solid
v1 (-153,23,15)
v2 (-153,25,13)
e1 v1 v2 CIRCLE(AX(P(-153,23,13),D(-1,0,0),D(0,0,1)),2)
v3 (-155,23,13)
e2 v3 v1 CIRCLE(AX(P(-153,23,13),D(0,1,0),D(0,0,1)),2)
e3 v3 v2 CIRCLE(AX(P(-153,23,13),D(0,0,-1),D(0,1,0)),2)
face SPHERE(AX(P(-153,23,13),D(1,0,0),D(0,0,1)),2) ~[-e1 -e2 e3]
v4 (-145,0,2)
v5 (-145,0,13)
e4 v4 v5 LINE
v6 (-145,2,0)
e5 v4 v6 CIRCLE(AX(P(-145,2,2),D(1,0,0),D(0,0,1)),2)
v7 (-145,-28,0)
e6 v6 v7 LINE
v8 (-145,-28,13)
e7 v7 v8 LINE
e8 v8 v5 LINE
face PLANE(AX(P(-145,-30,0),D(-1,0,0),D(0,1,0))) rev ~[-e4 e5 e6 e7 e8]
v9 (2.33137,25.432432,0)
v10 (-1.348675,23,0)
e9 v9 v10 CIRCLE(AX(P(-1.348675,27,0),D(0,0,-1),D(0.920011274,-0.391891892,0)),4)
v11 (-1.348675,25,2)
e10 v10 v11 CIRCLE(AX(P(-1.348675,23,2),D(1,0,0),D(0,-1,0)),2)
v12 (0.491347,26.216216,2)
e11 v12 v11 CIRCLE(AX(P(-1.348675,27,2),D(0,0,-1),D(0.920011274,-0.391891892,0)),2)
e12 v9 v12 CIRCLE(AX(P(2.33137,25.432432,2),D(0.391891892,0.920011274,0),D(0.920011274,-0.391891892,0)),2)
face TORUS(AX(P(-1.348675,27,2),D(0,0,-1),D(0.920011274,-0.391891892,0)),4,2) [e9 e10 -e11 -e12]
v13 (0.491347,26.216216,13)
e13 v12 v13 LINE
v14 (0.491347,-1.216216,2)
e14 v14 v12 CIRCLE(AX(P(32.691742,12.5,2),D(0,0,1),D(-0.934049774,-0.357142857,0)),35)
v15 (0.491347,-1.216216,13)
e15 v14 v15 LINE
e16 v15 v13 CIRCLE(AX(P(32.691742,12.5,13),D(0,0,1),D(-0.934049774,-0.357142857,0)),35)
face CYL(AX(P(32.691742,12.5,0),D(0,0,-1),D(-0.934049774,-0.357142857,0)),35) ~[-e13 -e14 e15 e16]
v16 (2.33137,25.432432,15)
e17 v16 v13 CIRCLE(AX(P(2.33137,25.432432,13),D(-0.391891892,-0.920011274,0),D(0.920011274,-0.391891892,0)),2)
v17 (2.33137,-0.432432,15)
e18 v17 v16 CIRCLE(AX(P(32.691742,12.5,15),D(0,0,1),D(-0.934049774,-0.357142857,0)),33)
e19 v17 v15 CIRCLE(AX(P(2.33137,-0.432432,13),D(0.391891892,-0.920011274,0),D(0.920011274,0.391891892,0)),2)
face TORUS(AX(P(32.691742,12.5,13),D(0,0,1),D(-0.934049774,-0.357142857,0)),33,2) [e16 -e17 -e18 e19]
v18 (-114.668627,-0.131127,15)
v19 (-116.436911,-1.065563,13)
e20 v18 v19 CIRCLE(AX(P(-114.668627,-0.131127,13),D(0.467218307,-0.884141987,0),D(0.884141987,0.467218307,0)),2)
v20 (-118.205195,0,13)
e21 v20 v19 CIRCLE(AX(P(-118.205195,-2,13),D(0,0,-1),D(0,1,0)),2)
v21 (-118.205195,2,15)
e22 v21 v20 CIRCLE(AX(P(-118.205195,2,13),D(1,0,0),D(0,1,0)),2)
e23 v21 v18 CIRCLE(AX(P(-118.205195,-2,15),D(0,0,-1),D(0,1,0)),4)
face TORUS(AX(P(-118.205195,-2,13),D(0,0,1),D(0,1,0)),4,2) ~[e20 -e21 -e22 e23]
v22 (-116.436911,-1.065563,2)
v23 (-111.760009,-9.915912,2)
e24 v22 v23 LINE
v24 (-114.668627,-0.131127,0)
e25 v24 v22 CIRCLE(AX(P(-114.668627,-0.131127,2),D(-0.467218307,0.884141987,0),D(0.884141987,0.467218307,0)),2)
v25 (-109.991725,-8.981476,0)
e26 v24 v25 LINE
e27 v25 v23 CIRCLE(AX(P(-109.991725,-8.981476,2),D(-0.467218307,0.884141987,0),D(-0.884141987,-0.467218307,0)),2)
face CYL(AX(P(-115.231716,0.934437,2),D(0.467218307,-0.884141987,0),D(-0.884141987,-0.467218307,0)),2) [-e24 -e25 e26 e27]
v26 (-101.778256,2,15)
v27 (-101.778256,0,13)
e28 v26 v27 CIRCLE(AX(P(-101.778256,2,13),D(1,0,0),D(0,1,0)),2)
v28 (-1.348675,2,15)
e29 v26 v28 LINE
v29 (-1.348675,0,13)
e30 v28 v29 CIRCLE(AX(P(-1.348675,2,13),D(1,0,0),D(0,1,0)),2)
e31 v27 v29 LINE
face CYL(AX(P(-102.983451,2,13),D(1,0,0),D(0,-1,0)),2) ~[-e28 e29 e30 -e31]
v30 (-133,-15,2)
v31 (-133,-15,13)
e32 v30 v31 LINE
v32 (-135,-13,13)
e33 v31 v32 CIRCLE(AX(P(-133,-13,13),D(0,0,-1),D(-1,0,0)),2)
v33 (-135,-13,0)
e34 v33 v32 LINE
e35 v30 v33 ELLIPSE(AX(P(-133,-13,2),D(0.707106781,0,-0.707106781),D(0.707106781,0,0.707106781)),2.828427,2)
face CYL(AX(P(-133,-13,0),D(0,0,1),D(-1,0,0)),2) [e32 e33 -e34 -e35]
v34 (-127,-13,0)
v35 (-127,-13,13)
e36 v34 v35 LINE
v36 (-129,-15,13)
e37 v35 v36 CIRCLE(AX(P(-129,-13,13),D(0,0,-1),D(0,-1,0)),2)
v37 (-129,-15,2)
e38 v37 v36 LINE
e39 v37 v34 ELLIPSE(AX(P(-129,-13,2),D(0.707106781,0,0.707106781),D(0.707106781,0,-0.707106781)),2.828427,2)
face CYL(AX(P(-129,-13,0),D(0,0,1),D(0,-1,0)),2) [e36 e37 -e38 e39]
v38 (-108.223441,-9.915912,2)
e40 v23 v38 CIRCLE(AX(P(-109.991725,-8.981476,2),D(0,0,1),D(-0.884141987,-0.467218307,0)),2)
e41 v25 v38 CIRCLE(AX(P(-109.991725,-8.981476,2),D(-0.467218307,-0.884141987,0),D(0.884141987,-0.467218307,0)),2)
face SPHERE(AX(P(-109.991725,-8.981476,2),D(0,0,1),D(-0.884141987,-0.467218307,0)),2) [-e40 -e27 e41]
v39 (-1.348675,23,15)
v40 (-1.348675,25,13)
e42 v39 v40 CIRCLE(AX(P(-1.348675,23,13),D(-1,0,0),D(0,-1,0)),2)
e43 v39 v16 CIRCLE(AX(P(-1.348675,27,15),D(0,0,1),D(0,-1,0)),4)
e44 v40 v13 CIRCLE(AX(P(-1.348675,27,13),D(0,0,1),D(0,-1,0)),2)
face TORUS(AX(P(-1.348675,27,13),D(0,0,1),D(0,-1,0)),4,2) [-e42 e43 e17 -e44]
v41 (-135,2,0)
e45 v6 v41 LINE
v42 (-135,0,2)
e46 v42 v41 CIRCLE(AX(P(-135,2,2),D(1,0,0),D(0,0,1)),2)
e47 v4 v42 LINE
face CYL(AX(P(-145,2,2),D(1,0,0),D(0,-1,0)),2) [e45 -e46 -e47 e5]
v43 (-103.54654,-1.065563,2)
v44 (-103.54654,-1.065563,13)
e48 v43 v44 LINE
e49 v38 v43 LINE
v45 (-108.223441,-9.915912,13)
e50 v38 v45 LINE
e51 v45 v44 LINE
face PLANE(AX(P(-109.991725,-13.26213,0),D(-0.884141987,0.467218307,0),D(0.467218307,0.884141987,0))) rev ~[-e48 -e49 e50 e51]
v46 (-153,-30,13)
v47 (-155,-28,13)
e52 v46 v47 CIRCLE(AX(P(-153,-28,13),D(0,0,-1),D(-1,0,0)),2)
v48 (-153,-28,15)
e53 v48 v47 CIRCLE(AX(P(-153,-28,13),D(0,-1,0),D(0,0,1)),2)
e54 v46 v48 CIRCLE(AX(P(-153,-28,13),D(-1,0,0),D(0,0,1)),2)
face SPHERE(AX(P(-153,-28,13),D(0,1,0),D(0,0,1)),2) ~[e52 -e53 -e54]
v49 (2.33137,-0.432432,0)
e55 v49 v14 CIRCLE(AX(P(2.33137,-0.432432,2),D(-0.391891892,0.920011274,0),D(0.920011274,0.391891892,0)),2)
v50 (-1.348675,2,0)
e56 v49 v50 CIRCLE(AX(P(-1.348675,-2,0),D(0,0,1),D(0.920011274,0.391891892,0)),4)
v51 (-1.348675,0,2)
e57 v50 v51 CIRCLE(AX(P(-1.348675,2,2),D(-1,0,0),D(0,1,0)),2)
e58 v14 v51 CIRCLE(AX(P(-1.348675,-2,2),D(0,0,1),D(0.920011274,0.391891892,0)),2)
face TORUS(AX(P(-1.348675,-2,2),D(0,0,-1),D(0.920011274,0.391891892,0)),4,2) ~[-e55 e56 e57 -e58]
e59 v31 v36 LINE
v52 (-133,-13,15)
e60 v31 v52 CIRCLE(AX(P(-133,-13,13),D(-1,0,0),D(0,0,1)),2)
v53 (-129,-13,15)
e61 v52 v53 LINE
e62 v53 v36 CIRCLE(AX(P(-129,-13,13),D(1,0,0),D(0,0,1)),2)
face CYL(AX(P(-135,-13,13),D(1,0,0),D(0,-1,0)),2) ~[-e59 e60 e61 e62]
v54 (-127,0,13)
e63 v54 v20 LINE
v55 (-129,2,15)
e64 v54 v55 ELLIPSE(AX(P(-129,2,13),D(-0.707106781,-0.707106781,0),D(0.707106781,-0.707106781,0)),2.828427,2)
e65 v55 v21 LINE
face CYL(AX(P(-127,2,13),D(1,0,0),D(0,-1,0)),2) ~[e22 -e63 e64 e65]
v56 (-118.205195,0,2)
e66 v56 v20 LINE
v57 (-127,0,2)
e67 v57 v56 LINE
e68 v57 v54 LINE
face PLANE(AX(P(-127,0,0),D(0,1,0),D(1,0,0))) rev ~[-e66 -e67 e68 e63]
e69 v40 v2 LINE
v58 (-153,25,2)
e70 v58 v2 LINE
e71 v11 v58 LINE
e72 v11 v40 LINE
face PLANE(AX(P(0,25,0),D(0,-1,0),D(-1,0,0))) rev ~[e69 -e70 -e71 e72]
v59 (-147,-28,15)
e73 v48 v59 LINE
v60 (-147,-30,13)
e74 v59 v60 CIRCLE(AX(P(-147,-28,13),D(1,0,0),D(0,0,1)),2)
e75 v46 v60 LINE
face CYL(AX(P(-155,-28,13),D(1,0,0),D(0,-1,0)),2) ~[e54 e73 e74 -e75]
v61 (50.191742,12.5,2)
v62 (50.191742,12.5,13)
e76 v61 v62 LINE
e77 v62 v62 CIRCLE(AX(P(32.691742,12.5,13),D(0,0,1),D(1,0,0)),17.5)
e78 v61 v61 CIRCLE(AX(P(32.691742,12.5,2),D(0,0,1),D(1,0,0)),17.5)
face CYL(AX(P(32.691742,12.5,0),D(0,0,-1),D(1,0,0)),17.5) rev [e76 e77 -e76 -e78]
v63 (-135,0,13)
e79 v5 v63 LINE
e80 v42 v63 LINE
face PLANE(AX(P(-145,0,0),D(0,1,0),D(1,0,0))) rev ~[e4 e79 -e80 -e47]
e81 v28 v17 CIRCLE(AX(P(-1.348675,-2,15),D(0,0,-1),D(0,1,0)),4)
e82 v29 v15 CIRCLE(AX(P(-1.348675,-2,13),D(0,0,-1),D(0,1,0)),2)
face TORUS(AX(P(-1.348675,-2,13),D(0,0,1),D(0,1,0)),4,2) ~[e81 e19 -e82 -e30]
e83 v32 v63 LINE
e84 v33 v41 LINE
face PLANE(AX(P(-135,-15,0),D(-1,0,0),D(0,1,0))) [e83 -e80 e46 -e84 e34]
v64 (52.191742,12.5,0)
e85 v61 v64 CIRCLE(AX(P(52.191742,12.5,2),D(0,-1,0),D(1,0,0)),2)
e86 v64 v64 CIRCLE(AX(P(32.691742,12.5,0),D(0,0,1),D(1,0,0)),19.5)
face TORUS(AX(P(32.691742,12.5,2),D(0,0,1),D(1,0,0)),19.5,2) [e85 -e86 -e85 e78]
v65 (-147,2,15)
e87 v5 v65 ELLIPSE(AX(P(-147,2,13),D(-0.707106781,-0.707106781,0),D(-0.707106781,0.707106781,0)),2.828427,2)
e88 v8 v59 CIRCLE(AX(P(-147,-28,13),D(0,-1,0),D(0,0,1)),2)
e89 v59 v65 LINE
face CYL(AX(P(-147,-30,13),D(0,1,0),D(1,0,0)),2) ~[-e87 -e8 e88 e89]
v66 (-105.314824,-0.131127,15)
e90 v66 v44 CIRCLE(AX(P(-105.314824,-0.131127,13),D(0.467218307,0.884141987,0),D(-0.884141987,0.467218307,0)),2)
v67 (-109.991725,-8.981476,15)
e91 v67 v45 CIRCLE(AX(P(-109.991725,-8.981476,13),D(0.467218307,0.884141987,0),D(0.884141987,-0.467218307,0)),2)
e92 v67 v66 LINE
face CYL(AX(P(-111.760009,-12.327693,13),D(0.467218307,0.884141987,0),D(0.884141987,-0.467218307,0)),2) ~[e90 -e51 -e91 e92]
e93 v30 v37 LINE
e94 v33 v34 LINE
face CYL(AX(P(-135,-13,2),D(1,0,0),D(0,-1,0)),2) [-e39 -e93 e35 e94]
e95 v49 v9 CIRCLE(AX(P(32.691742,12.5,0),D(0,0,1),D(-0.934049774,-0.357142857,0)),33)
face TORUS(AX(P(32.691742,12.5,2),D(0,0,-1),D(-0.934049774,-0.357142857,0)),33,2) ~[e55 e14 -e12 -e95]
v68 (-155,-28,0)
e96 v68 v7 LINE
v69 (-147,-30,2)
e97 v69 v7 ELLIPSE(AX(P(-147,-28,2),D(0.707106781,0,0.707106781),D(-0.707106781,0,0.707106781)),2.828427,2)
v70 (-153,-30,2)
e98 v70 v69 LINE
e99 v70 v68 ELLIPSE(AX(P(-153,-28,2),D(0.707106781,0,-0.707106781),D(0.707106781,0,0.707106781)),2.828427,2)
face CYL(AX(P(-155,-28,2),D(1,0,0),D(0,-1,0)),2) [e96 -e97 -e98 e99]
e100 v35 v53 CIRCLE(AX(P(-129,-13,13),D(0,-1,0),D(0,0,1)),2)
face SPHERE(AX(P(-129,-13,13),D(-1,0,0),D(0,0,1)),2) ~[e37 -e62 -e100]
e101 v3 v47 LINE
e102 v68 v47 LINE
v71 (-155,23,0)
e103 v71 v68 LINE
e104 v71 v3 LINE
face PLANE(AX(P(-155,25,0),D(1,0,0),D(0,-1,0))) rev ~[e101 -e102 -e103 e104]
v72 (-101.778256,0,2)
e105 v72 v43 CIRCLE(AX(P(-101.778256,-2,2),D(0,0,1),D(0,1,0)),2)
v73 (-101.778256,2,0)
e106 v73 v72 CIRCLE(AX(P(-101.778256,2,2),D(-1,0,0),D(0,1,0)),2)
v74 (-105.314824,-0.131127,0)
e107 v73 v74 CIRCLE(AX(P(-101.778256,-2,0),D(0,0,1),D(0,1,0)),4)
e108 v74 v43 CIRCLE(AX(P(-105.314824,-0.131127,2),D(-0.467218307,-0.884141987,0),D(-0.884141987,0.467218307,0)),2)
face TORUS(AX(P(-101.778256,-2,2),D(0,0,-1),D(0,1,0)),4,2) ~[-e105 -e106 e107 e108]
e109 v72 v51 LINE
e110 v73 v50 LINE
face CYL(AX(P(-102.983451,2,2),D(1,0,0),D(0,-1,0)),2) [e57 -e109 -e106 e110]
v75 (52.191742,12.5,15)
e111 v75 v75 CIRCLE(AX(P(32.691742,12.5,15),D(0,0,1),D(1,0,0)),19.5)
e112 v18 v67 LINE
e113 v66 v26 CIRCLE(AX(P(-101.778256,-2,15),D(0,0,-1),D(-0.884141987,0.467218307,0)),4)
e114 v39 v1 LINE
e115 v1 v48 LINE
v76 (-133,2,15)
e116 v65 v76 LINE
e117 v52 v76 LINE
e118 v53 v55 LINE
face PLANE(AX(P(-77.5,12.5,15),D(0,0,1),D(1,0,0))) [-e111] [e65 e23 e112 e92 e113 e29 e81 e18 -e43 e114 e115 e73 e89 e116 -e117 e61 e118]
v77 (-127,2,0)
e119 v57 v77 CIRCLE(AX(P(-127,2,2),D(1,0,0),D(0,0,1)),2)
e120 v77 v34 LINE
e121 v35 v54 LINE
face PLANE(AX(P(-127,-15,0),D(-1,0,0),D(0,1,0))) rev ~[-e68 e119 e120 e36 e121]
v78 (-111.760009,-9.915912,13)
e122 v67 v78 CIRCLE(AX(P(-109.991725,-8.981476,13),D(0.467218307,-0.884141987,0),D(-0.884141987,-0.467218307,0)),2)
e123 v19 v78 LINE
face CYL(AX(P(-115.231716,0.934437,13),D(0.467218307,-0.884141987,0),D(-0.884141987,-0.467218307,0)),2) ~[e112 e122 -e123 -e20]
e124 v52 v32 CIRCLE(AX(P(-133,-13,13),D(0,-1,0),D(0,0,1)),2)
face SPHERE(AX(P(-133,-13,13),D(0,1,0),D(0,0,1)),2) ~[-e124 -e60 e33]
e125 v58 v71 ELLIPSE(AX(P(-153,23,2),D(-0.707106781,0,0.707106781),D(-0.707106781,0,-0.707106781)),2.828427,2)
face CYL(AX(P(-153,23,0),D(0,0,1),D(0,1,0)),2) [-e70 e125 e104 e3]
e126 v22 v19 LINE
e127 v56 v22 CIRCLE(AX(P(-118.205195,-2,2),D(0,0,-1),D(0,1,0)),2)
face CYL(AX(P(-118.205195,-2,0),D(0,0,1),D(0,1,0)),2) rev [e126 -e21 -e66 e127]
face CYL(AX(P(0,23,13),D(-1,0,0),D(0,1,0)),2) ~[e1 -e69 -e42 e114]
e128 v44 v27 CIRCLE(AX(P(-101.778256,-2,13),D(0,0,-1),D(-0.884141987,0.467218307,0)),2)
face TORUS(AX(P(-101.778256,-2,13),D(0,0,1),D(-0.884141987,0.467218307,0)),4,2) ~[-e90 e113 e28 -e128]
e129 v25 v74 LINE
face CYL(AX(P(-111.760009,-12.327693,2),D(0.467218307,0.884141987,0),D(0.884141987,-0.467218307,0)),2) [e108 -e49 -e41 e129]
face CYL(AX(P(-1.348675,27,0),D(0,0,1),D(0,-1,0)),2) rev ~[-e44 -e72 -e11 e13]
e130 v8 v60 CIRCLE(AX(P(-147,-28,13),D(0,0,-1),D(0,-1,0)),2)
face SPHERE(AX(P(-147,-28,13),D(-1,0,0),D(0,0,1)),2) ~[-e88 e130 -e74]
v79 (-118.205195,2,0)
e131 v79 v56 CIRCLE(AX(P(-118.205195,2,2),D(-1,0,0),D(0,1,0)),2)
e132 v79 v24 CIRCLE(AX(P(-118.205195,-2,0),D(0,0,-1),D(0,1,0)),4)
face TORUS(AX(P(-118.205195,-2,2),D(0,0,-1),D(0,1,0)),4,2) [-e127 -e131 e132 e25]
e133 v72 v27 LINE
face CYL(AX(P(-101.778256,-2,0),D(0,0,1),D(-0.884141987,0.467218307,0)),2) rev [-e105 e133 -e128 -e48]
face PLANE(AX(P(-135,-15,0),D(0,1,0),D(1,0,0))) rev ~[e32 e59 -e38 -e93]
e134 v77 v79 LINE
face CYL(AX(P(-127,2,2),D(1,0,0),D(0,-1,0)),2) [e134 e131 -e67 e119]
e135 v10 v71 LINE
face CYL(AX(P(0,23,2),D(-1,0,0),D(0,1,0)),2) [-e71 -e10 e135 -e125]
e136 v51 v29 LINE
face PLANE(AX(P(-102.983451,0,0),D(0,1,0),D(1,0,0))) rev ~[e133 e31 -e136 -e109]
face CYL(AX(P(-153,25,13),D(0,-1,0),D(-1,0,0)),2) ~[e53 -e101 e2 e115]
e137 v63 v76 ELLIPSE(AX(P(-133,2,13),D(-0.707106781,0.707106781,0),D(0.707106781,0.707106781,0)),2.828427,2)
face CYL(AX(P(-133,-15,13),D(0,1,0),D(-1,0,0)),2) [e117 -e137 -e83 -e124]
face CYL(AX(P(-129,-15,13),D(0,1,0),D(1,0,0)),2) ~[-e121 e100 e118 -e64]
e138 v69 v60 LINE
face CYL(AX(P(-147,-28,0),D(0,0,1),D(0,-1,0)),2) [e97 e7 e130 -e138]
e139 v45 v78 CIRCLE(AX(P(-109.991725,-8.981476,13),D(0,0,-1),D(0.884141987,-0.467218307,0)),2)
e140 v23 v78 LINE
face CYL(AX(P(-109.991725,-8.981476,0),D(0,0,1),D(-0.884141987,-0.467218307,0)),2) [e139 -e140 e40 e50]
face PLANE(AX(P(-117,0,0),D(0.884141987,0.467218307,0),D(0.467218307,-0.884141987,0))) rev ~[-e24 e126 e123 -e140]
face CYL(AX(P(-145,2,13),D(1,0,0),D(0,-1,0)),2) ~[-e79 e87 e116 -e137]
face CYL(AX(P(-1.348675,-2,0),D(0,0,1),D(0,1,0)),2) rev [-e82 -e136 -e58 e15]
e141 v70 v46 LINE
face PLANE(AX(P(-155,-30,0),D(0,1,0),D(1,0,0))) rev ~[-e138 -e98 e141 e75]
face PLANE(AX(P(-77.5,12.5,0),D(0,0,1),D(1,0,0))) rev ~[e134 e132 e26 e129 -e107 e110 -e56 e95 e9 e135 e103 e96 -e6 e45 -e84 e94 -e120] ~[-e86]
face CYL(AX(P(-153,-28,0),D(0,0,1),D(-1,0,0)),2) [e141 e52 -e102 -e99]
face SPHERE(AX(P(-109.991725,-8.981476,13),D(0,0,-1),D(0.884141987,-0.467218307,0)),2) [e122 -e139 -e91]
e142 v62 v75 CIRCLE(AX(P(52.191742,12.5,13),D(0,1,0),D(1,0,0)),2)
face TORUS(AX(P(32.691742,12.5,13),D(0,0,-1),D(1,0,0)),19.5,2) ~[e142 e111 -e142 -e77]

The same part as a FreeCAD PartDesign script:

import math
import FreeCAD as App
import Part
import Sketcher
from FreeCAD import Vector
Q = App.Units.Quantity


def edges_at(feature, points):
    """Names of the edges that pass closest to the given points."""
    edges = feature.Shape.Edges
    near = lambda p: min(range(len(edges)), key=lambda i: edges[i].distToShape(Part.Vertex(*p))[0])
    return sorted({f"Edge{near(p) + 1}" for p in points})

doc = App.newDocument("Part")
body = doc.addObject("PartDesign::Body", "Body")

# Sketch on XY plane
sketch1 = body.newObject("Sketcher::SketchObject", "Sketch")
sketch1.AttachmentSupport = (doc.getObject("XY_Plane"), [""])
sketch1.MapMode = "FlatFace"
sketch1.addGeometry([
    Part.LineSegment(Vector(0, 25, 0), Vector(-155, 25, 0)),  # 0
    Part.LineSegment(Vector(-155, 25, 0), Vector(-155, -30, 0)),  # 1
    Part.LineSegment(Vector(-155, -30, 0), Vector(-145, -30, 0)),  # 2
    Part.LineSegment(Vector(-145, -30, 0), Vector(-145, 0, 0)),  # 3
    Part.LineSegment(Vector(-145, 0, 0), Vector(-135, 0, 0)),  # 4
    Part.LineSegment(Vector(-135, 0, 0), Vector(-135, -15, 0)),  # 5
    Part.LineSegment(Vector(-135, -15, 0), Vector(-127, -15, 0)),  # 6
    Part.LineSegment(Vector(-127, -15, 0), Vector(-127, 0, 0)),  # 7
    Part.LineSegment(Vector(-127, 0, 0), Vector(-117, 0, 0)),  # 8
    Part.LineSegment(Vector(-117, 0, 0), Vector(-110, -13, 0)),  # 9
    Part.LineSegment(Vector(-110, -13, 0), Vector(-103, 0, 0)),  # 10
    Part.LineSegment(Vector(-103, 0, 0), Vector(0, 0, 0)),  # 11
    Part.ArcOfCircle(Part.Circle(Vector(33, 12, 0), Vector(0, 0, 1), 35), math.radians(-159), math.radians(159)),  # 12
    Part.Circle(Vector(33, 12, 0), Vector(0, 0, 1), 18),  # 13
], False)
sketch1.addConstraint([
    Sketcher.Constraint("Coincident", 0, 2, 1, 1),
    Sketcher.Constraint("Coincident", 1, 2, 2, 1),
    Sketcher.Constraint("Coincident", 2, 2, 3, 1),
    Sketcher.Constraint("Coincident", 3, 2, 4, 1),
    Sketcher.Constraint("Coincident", 4, 2, 5, 1),
    Sketcher.Constraint("Coincident", 5, 2, 6, 1),
    Sketcher.Constraint("Coincident", 6, 2, 7, 1),
    Sketcher.Constraint("Coincident", 7, 2, 8, 1),
    Sketcher.Constraint("Coincident", 8, 2, 9, 1),
    Sketcher.Constraint("Coincident", 9, 2, 10, 1),
    Sketcher.Constraint("Coincident", 10, 2, 11, 1),
    Sketcher.Constraint("Coincident", 11, 2, 12, 1),
    Sketcher.Constraint("Coincident", 12, 2, 0, 1),
    Sketcher.Constraint("Horizontal", 0),
    Sketcher.Constraint("Vertical", 1),
    Sketcher.Constraint("Horizontal", 2),
    Sketcher.Constraint("Vertical", 3),
    Sketcher.Constraint("Horizontal", 4),
    Sketcher.Constraint("Vertical", 5),
    Sketcher.Constraint("Horizontal", 6),
    Sketcher.Constraint("Vertical", 7),
    Sketcher.Constraint("Horizontal", 8),
    Sketcher.Constraint("Horizontal", 11),
    Sketcher.Constraint("Coincident", 11, 2, -1, 1),
    Sketcher.Constraint("Coincident", 13, 3, 12, 3),
    Sketcher.Constraint("PointOnObject", 3, 2, -1),
    Sketcher.Constraint("PointOnObject", 7, 2, -1),
    Sketcher.Constraint("PointOnObject", 12, 2, -2),
    Sketcher.Constraint("Equal", 2, 4),
    Sketcher.Constraint("Equal", 4, 8),
    Sketcher.Constraint("Equal", 9, 10),
    Sketcher.Constraint("Diameter", 13, Q("35 mm")),
    Sketcher.Constraint("Radius", 12, Q("35 mm")),
    Sketcher.Constraint("DistanceX", 0, 2, 0, 1, Q("155 mm")),
    Sketcher.Constraint("DistanceX", 2, 1, 2, 2, Q("10 mm")),
    Sketcher.Constraint("DistanceX", 6, 1, 6, 2, Q("8 mm")),
    Sketcher.Constraint("DistanceY", 1, 2, 1, 1, Q("55 mm")),
    Sketcher.Constraint("DistanceY", 3, 1, 3, 2, Q("30 mm")),
    Sketcher.Constraint("DistanceY", 5, 2, 5, 1, Q("15 mm")),
    Sketcher.Constraint("Distance", 9, Q("15 mm")),
    Sketcher.Constraint("DistanceX", 11, 1, 11, 2, Q("102.983451 mm")),
])
pad1 = body.newObject("PartDesign::Pad", "Pad")
pad1.Profile = sketch1
pad1.Length = 15
doc.recompute()

fillet = body.newObject("PartDesign::Fillet", "Fillet")
fillet.Base = (pad1, edges_at(pad1, [
    (-77.5, 25, 15),
    (-51.492, 0, 0),
    (-155, -2.5, 15),
    (-150, -30, 15),
    (-145, -15, 15),
    (-140, 0, 15),
    (-135, -7.5, 15),
    (-131, -15, 15),
    (-122, 0, 0),
    (-113.496, -6.631, 15),
    (-106.488, -6.631, 0),
    (67.692, 12.5, 15),
    (15.192, 12.5, 0),
    (-77.5, 25, 0),
    (0, 0, 7.5),
    (0, 25, 7.5),
    (67.692, 12.5, 0),
    (-51.492, 0, 15),
    (-102.983, 0, 7.5),
    (-109.992, -13.262, 7.5),
    (-106.488, -6.631, 15),
    (-113.496, -6.631, 0),
    (-117, 0, 7.5),
    (-122, 0, 15),
    (-127, -7.5, 15),
    (-131, -15, 0),
    (-140, 0, 0),
    (-135, -15, 7.5),
    (-145, -30, 7.5),
    (-150, -30, 0),
    (-155, -30, 7.5),
    (-127, -15, 7.5),
    (15.192, 12.5, 15),
    (-155, 25, 7.5),
]))
fillet.Radius = 2

doc.recompute()
